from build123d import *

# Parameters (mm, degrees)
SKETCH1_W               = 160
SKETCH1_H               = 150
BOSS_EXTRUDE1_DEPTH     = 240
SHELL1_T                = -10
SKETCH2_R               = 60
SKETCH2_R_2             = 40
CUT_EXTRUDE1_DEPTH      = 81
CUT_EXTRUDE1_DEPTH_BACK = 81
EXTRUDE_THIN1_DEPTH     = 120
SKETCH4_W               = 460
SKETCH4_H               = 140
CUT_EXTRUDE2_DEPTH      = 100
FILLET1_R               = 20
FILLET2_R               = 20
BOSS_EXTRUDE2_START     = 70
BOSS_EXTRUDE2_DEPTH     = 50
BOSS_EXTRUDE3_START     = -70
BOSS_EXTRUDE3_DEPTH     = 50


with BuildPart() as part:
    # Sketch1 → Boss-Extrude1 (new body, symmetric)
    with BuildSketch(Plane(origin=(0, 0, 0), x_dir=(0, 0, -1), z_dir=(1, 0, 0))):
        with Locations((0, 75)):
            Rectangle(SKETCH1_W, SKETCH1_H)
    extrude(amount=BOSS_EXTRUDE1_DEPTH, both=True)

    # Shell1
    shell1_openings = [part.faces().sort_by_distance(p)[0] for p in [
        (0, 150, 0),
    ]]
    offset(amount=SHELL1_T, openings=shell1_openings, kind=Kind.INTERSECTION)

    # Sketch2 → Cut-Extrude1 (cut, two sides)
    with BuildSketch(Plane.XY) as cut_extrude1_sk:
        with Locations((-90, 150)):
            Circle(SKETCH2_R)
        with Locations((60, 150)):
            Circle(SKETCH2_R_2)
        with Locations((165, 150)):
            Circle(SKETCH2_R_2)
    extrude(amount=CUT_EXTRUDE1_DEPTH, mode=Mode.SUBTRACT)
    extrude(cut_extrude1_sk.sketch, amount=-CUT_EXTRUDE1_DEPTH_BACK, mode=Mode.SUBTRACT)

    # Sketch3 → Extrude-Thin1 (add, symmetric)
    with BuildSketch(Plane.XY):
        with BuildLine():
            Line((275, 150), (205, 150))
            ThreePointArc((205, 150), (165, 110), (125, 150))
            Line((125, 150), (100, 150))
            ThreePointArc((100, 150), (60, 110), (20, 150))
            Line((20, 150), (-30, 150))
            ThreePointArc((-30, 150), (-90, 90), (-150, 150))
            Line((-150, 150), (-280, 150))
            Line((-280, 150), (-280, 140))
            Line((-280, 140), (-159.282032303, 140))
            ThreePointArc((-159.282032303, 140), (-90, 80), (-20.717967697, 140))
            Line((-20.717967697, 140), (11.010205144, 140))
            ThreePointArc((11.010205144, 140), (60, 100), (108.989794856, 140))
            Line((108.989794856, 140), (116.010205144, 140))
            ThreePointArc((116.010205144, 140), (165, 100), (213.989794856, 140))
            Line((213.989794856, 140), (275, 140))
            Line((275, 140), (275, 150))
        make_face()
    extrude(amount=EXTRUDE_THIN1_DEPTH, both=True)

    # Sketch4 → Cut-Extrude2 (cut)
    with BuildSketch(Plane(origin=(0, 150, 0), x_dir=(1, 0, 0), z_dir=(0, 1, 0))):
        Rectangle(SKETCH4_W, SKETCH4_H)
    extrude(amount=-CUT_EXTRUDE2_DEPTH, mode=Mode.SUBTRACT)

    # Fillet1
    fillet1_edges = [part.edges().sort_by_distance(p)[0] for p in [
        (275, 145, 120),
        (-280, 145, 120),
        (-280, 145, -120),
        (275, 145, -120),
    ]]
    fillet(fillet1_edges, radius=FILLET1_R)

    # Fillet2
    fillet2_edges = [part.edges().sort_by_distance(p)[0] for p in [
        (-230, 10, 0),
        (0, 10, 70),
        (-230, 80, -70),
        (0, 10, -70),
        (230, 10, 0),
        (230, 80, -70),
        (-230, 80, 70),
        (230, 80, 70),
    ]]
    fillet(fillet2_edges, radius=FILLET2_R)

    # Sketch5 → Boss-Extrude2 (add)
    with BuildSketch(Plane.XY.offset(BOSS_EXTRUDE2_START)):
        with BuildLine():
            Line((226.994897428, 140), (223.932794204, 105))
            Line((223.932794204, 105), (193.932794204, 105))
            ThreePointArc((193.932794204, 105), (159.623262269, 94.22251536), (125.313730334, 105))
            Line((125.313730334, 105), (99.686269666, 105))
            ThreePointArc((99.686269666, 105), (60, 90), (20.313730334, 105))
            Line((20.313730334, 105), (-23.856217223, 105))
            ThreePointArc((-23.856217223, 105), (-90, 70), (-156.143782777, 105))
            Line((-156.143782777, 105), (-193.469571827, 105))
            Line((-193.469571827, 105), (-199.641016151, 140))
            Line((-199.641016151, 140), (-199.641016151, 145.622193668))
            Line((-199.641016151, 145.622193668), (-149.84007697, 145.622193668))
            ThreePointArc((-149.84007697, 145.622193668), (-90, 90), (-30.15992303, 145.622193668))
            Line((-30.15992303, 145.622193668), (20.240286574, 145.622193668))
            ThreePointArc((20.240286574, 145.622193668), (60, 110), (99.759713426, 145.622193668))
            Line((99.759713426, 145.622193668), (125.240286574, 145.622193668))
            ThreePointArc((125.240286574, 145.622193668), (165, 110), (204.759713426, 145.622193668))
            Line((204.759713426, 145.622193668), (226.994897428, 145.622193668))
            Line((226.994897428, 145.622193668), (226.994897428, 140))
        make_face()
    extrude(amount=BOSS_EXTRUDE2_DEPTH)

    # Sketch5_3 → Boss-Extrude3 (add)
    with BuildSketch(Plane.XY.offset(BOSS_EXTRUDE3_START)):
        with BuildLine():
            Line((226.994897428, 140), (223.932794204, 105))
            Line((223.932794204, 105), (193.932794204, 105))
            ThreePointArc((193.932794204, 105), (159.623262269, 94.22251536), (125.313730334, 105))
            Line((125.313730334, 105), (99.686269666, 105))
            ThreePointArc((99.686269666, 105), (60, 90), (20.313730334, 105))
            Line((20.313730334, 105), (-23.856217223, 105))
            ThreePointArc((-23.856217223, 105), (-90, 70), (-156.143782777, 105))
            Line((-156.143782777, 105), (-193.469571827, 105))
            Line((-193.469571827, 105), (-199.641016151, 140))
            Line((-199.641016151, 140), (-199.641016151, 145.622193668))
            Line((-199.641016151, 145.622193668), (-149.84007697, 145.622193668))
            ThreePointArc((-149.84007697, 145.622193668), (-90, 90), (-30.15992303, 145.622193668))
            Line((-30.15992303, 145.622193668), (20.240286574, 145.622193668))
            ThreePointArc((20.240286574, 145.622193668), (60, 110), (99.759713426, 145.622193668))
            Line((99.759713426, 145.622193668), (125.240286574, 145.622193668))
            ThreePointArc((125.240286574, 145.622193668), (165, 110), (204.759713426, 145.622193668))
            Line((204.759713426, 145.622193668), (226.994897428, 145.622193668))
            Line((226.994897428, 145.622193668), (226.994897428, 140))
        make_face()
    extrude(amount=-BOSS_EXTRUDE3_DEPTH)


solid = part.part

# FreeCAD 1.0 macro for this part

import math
import FreeCAD as App
import Part
import Sketcher
from FreeCAD import Vector
Q = App.Units.Quantity


def edges_at(feature, points):
    """Names of the edges that pass closest to the given points."""
    edges = feature.Shape.Edges
    near = lambda p: min(range(len(edges)), key=lambda i: edges[i].distToShape(Part.Vertex(*p))[0])
    return sorted({f"Edge{near(p) + 1}" for p in points})


def faces_at(feature, points):
    """Names of the faces that lie closest to the given points."""
    faces = feature.Shape.Faces
    near = lambda p: min(range(len(faces)), key=lambda i: faces[i].distToShape(Part.Vertex(*p))[0])
    return sorted({f"Face{near(p) + 1}" for p in points})


def add_polygon(sketch, points):
    """Adds a closed chain of lines whose ends are joined by coincident constraints."""
    first, n = sketch.GeometryCount, len(points)
    for a, b in zip(points, points[1:] + points[:1]):
        sketch.addGeometry(Part.LineSegment(App.Vector(*a, 0), App.Vector(*b, 0)), False)
    for i in range(n):
        sketch.addConstraint(Sketcher.Constraint("Coincident", first + i, 2, first + (i + 1) % n, 1))

doc = App.newDocument("Part")
body = doc.addObject("PartDesign::Body", "Body")

sketch1 = body.newObject("Sketcher::SketchObject", "Sketch")
sketch1.AttachmentSupport = (doc.getObject("YZ_Plane"), [""])
sketch1.MapMode = "FlatFace"
add_polygon(sketch1, [(150, 80), (0, 80), (0, -80), (150, -80)])
sketch1.addConstraint(Sketcher.Constraint("Horizontal", 0))
sketch1.addConstraint(Sketcher.Constraint("Vertical", 1))
sketch1.addConstraint(Sketcher.Constraint("Horizontal", 2))
sketch1.addConstraint(Sketcher.Constraint("Vertical", 3))
sketch1.addConstraint(Sketcher.Constraint("Symmetric", 0, 2, 1, 2, -1, 1))
sketch1.addConstraint(Sketcher.Constraint("DistanceX", 0, 2, 0, 1, 150.0))
sketch1.addConstraint(Sketcher.Constraint("DistanceY", 1, 2, 1, 1, 160.0))
pad1 = body.newObject("PartDesign::Pad", "Pad")
pad1.Profile = sketch1
pad1.Length = 480
pad1.Midplane = True
doc.recompute()

thickness = body.newObject("PartDesign::Thickness", "Thickness")
thickness.Base = (pad1, faces_at(pad1, [(0, 150, 0)]))
thickness.Value = 10
thickness.Reversed = True
thickness.Join = "Intersection"

sketch2 = body.newObject("Sketcher::SketchObject", "Sketch001")
sketch2.AttachmentSupport = (doc.getObject("XY_Plane"), [""])
sketch2.MapMode = "FlatFace"
sketch2.addGeometry(Part.Circle(Vector(-90, 150, 0), Vector(0, 0, 1), 60), False)
sketch2.addGeometry(Part.Circle(Vector(60, 150, 0), Vector(0, 0, 1), 40), False)
sketch2.addGeometry(Part.Circle(Vector(165, 150, 0), Vector(0, 0, 1), 40), False)
sketch2.addConstraint(Sketcher.Constraint("Equal", 1, 2))
sketch2.addConstraint(Sketcher.Constraint("Horizontal", 0, 3, 1, 3))
sketch2.addConstraint(Sketcher.Constraint("Horizontal", 1, 3, 2, 3))
sketch2.addConstraint(Sketcher.Constraint("Diameter", 0, 120.0))
sketch2.addConstraint(Sketcher.Constraint("Diameter", 1, 80.0))
sketch2.addConstraint(Sketcher.Constraint("DistanceX", 0, 3, -1, 1, 90.0))
sketch2.addConstraint(Sketcher.Constraint("DistanceY", -1, 1, 0, 3, 150.0))
sketch2.addConstraint(Sketcher.Constraint("DistanceX", -1, 1, 1, 3, 60.0))
sketch2.addConstraint(Sketcher.Constraint("DistanceX", -1, 1, 2, 3, 165.0))
pocket1 = body.newObject("PartDesign::Pocket", "Pocket")
pocket1.Profile = sketch2
pocket1.Type = "ThroughAll"
pocket1.Midplane = True

sketch3 = body.newObject("Sketcher::SketchObject", "Sketch002")
sketch3.AttachmentSupport = (doc.getObject("XY_Plane"), [""])
sketch3.MapMode = "FlatFace"
sketch3.addGeometry(Part.LineSegment(Vector(275, 150, 0), Vector(205, 150, 0)), False)
sketch3.addGeometry(Part.ArcOfCircle(Part.Circle(Vector(165, 150, 0), Vector(0, 0, 1), 40), math.radians(180), math.radians(360)), False)
sketch3.addGeometry(Part.LineSegment(Vector(125, 150, 0), Vector(100, 150, 0)), False)
sketch3.addGeometry(Part.ArcOfCircle(Part.Circle(Vector(60, 150, 0), Vector(0, 0, 1), 40), math.radians(180), math.radians(360)), False)
sketch3.addGeometry(Part.LineSegment(Vector(20, 150, 0), Vector(-30, 150, 0)), False)
sketch3.addGeometry(Part.ArcOfCircle(Part.Circle(Vector(-90, 150, 0), Vector(0, 0, 1), 60), math.radians(180), math.radians(360)), False)
sketch3.addGeometry(Part.LineSegment(Vector(-150, 150, 0), Vector(-280, 150, 0)), False)
sketch3.addGeometry(Part.LineSegment(Vector(-280, 150, 0), Vector(-280, 140, 0)), False)
sketch3.addGeometry(Part.LineSegment(Vector(-280, 140, 0), Vector(-159, 140, 0)), False)
sketch3.addGeometry(Part.ArcOfCircle(Part.Circle(Vector(-90, 150, 0), Vector(0, 0, 1), 70), math.radians(-172), math.radians(-8)), False)
sketch3.addGeometry(Part.LineSegment(Vector(-21, 140, 0), Vector(11, 140, 0)), False)
sketch3.addGeometry(Part.ArcOfCircle(Part.Circle(Vector(60, 150, 0), Vector(0, 0, 1), 50), math.radians(-168), math.radians(-12)), False)
sketch3.addGeometry(Part.LineSegment(Vector(109, 140, 0), Vector(116, 140, 0)), False)
sketch3.addGeometry(Part.ArcOfCircle(Part.Circle(Vector(165, 150, 0), Vector(0, 0, 1), 50), math.radians(-168), math.radians(-12)), False)
sketch3.addGeometry(Part.LineSegment(Vector(214, 140, 0), Vector(275, 140, 0)), False)
sketch3.addGeometry(Part.LineSegment(Vector(275, 140, 0), Vector(275, 150, 0)), False)
sketch3.addConstraint(Sketcher.Constraint("Coincident", 0, 2, 1, 2))
sketch3.addConstraint(Sketcher.Constraint("Coincident", 1, 1, 2, 1))
sketch3.addConstraint(Sketcher.Constraint("Coincident", 2, 2, 3, 2))
sketch3.addConstraint(Sketcher.Constraint("Coincident", 3, 1, 4, 1))
sketch3.addConstraint(Sketcher.Constraint("Coincident", 4, 2, 5, 2))
sketch3.addConstraint(Sketcher.Constraint("Coincident", 5, 1, 6, 1))
sketch3.addConstraint(Sketcher.Constraint("Coincident", 6, 2, 7, 1))
sketch3.addConstraint(Sketcher.Constraint("Coincident", 7, 2, 8, 1))
sketch3.addConstraint(Sketcher.Constraint("Coincident", 8, 2, 9, 1))
sketch3.addConstraint(Sketcher.Constraint("Coincident", 9, 2, 10, 1))
sketch3.addConstraint(Sketcher.Constraint("Coincident", 10, 2, 11, 1))
sketch3.addConstraint(Sketcher.Constraint("Coincident", 11, 2, 12, 1))
sketch3.addConstraint(Sketcher.Constraint("Coincident", 12, 2, 13, 1))
sketch3.addConstraint(Sketcher.Constraint("Coincident", 13, 2, 14, 1))
sketch3.addConstraint(Sketcher.Constraint("Coincident", 14, 2, 15, 1))
sketch3.addConstraint(Sketcher.Constraint("Coincident", 15, 2, 0, 1))
sketch3.addConstraint(Sketcher.Constraint("Horizontal", 0))
sketch3.addConstraint(Sketcher.Constraint("Horizontal", 2))
sketch3.addConstraint(Sketcher.Constraint("Horizontal", 4))
sketch3.addConstraint(Sketcher.Constraint("Horizontal", 6))
sketch3.addConstraint(Sketcher.Constraint("Vertical", 7))
sketch3.addConstraint(Sketcher.Constraint("Horizontal", 8))
sketch3.addConstraint(Sketcher.Constraint("Horizontal", 10))
sketch3.addConstraint(Sketcher.Constraint("Horizontal", 12))
sketch3.addConstraint(Sketcher.Constraint("Horizontal", 14))
sketch3.addConstraint(Sketcher.Constraint("Vertical", 15))
sketch3.addConstraint(Sketcher.Constraint("Coincident", 9, 3, 5, 3))
sketch3.addConstraint(Sketcher.Constraint("Coincident", 11, 3, 3, 3))
sketch3.addConstraint(Sketcher.Constraint("Coincident", 13, 3, 1, 3))
sketch3.addConstraint(Sketcher.Constraint("Equal", 1, 3))
sketch3.addConstraint(Sketcher.Constraint("Equal", 11, 13))
sketch3.addConstraint(Sketcher.Constraint("Horizontal", 1, 3, 3, 3))
sketch3.addConstraint(Sketcher.Constraint("Horizontal", 3, 3, 5, 3))
sketch3.addConstraint(Sketcher.Constraint("Horizontal", 13, 3, 0, 2))
sketch3.addConstraint(Sketcher.Constraint("Horizontal", 0, 2, 1, 1))
sketch3.addConstraint(Sketcher.Constraint("Horizontal", 2, 2, 3, 1))
sketch3.addConstraint(Sketcher.Constraint("Horizontal", 4, 2, 5, 1))
sketch3.addConstraint(Sketcher.Constraint("Horizontal", 8, 2, 9, 2))
sketch3.addConstraint(Sketcher.Constraint("Horizontal", 10, 2, 11, 2))
sketch3.addConstraint(Sketcher.Constraint("Horizontal", 12, 2, 13, 2))
sketch3.addConstraint(Sketcher.Constraint("Radius", 1, 40.0))
sketch3.addConstraint(Sketcher.Constraint("Radius", 5, 60.0))
sketch3.addConstraint(Sketcher.Constraint("Radius", 9, 70.0))
sketch3.addConstraint(Sketcher.Constraint("Radius", 11, 50.0))
sketch3.addConstraint(Sketcher.Constraint("DistanceX", 0, 2, 0, 1, 70.0))
sketch3.addConstraint(Sketcher.Constraint("DistanceX", 2, 2, 2, 1, 25.0))
sketch3.addConstraint(Sketcher.Constraint("DistanceX", 4, 2, 4, 1, 50.0))
sketch3.addConstraint(Sketcher.Constraint("DistanceX", 6, 2, 6, 1, 130.0))
sketch3.addConstraint(Sketcher.Constraint("DistanceY", 7, 2, 7, 1, 10.0))
sketch3.addConstraint(Sketcher.Constraint("DistanceX", -1, 1, 1, 3, 165.0))
sketch3.addConstraint(Sketcher.Constraint("DistanceY", -1, 1, 1, 3, 150.0))
pad2 = body.newObject("PartDesign::Pad", "Pad001")
pad2.Profile = sketch3
pad2.Length = 240
pad2.Midplane = True

sketch4 = body.newObject("Sketcher::SketchObject", "Sketch003")
sketch4.AttachmentSupport = (doc.getObject("XZ_Plane"), [""])
sketch4.MapMode = "FlatFace"
sketch4.AttachmentOffset = App.Placement(Vector(0, 0, -150), App.Rotation())
add_polygon(sketch4, [(-230, -70), (-230, 70), (230, 70), (230, -70)])
sketch4.addConstraint(Sketcher.Constraint("Vertical", 0))
sketch4.addConstraint(Sketcher.Constraint("Horizontal", 1))
sketch4.addConstraint(Sketcher.Constraint("Vertical", 2))
sketch4.addConstraint(Sketcher.Constraint("Horizontal", 3))
sketch4.addConstraint(Sketcher.Constraint("Symmetric", 0, 2, 2, 2, -1, 1))
sketch4.addConstraint(Sketcher.Constraint("DistanceX", 1, 1, 1, 2, 460.0))
sketch4.addConstraint(Sketcher.Constraint("DistanceY", 0, 1, 0, 2, 140.0))
pocket2 = body.newObject("PartDesign::Pocket", "Pocket001")
pocket2.Profile = sketch4
pocket2.Length = 100
pocket2.Reversed = True
doc.recompute()

fillet = body.newObject("PartDesign::Fillet", "Fillet")
fillet.Base = (pocket2, edges_at(pocket2, [
    (275, 145, 120),
    (-280, 145, 120),
    (-280, 145, -120),
    (275, 145, -120),
]))
fillet.Radius = 20
doc.recompute()

fillet2 = body.newObject("PartDesign::Fillet", "Fillet001")
fillet2.Base = (fillet, edges_at(fillet, [
    (-230, 10, 0),
    (0, 10, 70),
    (-230, 95, -70),
    (0, 10, -70),
    (230, 10, 0),
    (230, 95, -70),
    (-230, 95, 70),
    (230, 95, 70),
]))
fillet2.Radius = 20

sketch5 = body.newObject("Sketcher::SketchObject", "Sketch004")
sketch5.AttachmentSupport = (doc.getObject("XY_Plane"), [""])
sketch5.MapMode = "FlatFace"
sketch5.AttachmentOffset = App.Placement(Vector(0, 0, 70), App.Rotation())
sketch5.addGeometry(Part.LineSegment(Vector(224, 105, 0), Vector(227, 140, 0)), False)
sketch5.addGeometry(Part.LineSegment(Vector(227, 140, 0), Vector(227, 146, 0)), False)
sketch5.addGeometry(Part.LineSegment(Vector(227, 146, 0), Vector(205, 146, 0)), False)
sketch5.addGeometry(Part.ArcOfCircle(Part.Circle(Vector(165, 150, 0), Vector(0, 0, 1), 40), math.radians(-174), math.radians(-6)), False)
sketch5.addGeometry(Part.LineSegment(Vector(125, 146, 0), Vector(100, 146, 0)), False)
sketch5.addGeometry(Part.ArcOfCircle(Part.Circle(Vector(60, 150, 0), Vector(0, 0, 1), 40), math.radians(-174), math.radians(-6)), False)
sketch5.addGeometry(Part.LineSegment(Vector(20, 146, 0), Vector(-30, 146, 0)), False)
sketch5.addGeometry(Part.ArcOfCircle(Part.Circle(Vector(-90, 150, 0), Vector(0, 0, 1), 60), math.radians(-176), math.radians(-4)), False)
sketch5.addGeometry(Part.LineSegment(Vector(-150, 146, 0), Vector(-200, 146, 0)), False)
sketch5.addGeometry(Part.LineSegment(Vector(-200, 146, 0), Vector(-200, 140, 0)), False)
sketch5.addGeometry(Part.LineSegment(Vector(-200, 140, 0), Vector(-193, 105, 0)), False)
sketch5.addGeometry(Part.LineSegment(Vector(-193, 105, 0), Vector(-156, 105, 0)), False)
sketch5.addGeometry(Part.ArcOfCircle(Part.Circle(Vector(-90, 150, 0), Vector(0, 0, 1), 80), math.radians(-146), math.radians(-34)), False)
sketch5.addGeometry(Part.LineSegment(Vector(-24, 105, 0), Vector(20, 105, 0)), False)
sketch5.addGeometry(Part.ArcOfCircle(Part.Circle(Vector(60, 150, 0), Vector(0, 0, 1), 60), math.radians(-131), math.radians(-49)), False)
sketch5.addGeometry(Part.LineSegment(Vector(100, 105, 0), Vector(125, 105, 0)), False)
sketch5.addGeometry(Part.ArcOfCircle(Part.Circle(Vector(160, 154, 0), Vector(0, 0, 1), 60), math.radians(-125), math.radians(-55)), False)
sketch5.addGeometry(Part.LineSegment(Vector(194, 105, 0), Vector(224, 105, 0)), False)
sketch5.addConstraint(Sketcher.Constraint("Coincident", 0, 2, 1, 1))
sketch5.addConstraint(Sketcher.Constraint("Coincident", 1, 2, 2, 1))
sketch5.addConstraint(Sketcher.Constraint("Coincident", 2, 2, 3, 2))
sketch5.addConstraint(Sketcher.Constraint("Coincident", 3, 1, 4, 1))
sketch5.addConstraint(Sketcher.Constraint("Coincident", 4, 2, 5, 2))
sketch5.addConstraint(Sketcher.Constraint("Coincident", 5, 1, 6, 1))
sketch5.addConstraint(Sketcher.Constraint("Coincident", 6, 2, 7, 2))
sketch5.addConstraint(Sketcher.Constraint("Coincident", 7, 1, 8, 1))
sketch5.addConstraint(Sketcher.Constraint("Coincident", 8, 2, 9, 1))
sketch5.addConstraint(Sketcher.Constraint("Coincident", 9, 2, 10, 1))
sketch5.addConstraint(Sketcher.Constraint("Coincident", 10, 2, 11, 1))
sketch5.addConstraint(Sketcher.Constraint("Coincident", 11, 2, 12, 1))
sketch5.addConstraint(Sketcher.Constraint("Coincident", 12, 2, 13, 1))
sketch5.addConstraint(Sketcher.Constraint("Coincident", 13, 2, 14, 1))
sketch5.addConstraint(Sketcher.Constraint("Coincident", 14, 2, 15, 1))
sketch5.addConstraint(Sketcher.Constraint("Coincident", 15, 2, 16, 1))
sketch5.addConstraint(Sketcher.Constraint("Coincident", 16, 2, 17, 1))
sketch5.addConstraint(Sketcher.Constraint("Coincident", 17, 2, 0, 1))
sketch5.addConstraint(Sketcher.Constraint("Vertical", 1))
sketch5.addConstraint(Sketcher.Constraint("Horizontal", 2))
sketch5.addConstraint(Sketcher.Constraint("Horizontal", 4))
sketch5.addConstraint(Sketcher.Constraint("Horizontal", 6))
sketch5.addConstraint(Sketcher.Constraint("Horizontal", 8))
sketch5.addConstraint(Sketcher.Constraint("Vertical", 9))
sketch5.addConstraint(Sketcher.Constraint("Horizontal", 11))
sketch5.addConstraint(Sketcher.Constraint("Horizontal", 13))
sketch5.addConstraint(Sketcher.Constraint("Horizontal", 15))
sketch5.addConstraint(Sketcher.Constraint("Horizontal", 17))
sketch5.addConstraint(Sketcher.Constraint("Coincident", 12, 3, 7, 3))
sketch5.addConstraint(Sketcher.Constraint("Coincident", 14, 3, 5, 3))
sketch5.addConstraint(Sketcher.Constraint("Equal", 3, 5))
sketch5.addConstraint(Sketcher.Constraint("Equal", 7, 14))
sketch5.addConstraint(Sketcher.Constraint("Equal", 14, 16))
sketch5.addConstraint(Sketcher.Constraint("Horizontal", 3, 3, 5, 3))
sketch5.addConstraint(Sketcher.Constraint("Horizontal", 5, 3, 7, 3))
sketch5.addConstraint(Sketcher.Constraint("Horizontal", 2, 2, 3, 1))
sketch5.addConstraint(Sketcher.Constraint("Horizontal", 4, 2, 5, 1))
sketch5.addConstraint(Sketcher.Constraint("Horizontal", 6, 2, 7, 1))
sketch5.addConstraint(Sketcher.Constraint("Horizontal", 0, 2, 9, 2))
sketch5.addConstraint(Sketcher.Constraint("Horizontal", 11, 2, 12, 2))
sketch5.addConstraint(Sketcher.Constraint("Horizontal", 13, 2, 14, 2))
sketch5.addConstraint(Sketcher.Constraint("Horizontal", 15, 2, 16, 2))
sketch5.addConstraint(Sketcher.Constraint("Radius", 3, 40.0))
sketch5.addConstraint(Sketcher.Constraint("Radius", 7, 60.0))
sketch5.addConstraint(Sketcher.Constraint("Radius", 12, 80.0))
sketch5.addConstraint(Sketcher.Constraint("DistanceX", 17, 1, 17, 2, 30.0))
sketch5.addConstraint(Sketcher.Constraint("Angle", 0, Q("85 deg")))
sketch5.addConstraint(Sketcher.Constraint("Angle", 10, Q("-80 deg")))
sketch5.addConstraint(Sketcher.Constraint("DistanceX", -1, 1, 3, 3, 165.0))
sketch5.addConstraint(Sketcher.Constraint("DistanceY", -1, 1, 3, 3, 150.0))
sketch5.addConstraint(Sketcher.Constraint("DistanceX", -1, 1, 5, 3, 60.0))
sketch5.addConstraint(Sketcher.Constraint("DistanceX", 7, 3, -1, 1, 90.0))
sketch5.addConstraint(Sketcher.Constraint("DistanceY", -1, 1, 0, 2, 140.0))
sketch5.addConstraint(Sketcher.Constraint("DistanceY", -1, 1, 10, 2, 105.0))
sketch5.addConstraint(Sketcher.Constraint("DistanceX", 6, 2, 6, 1, 50.40021))
sketch5.addConstraint(Sketcher.Constraint("DistanceX", 8, 2, 8, 1, 49.800939))
sketch5.addConstraint(Sketcher.Constraint("DistanceX", 15, 1, 15, 2, 25.627461))
sketch5.addConstraint(Sketcher.Constraint("DistanceX", 2, 2, 2, 1, 22.235184))
pad3 = body.newObject("PartDesign::Pad", "Pad002")
pad3.Profile = sketch5
pad3.Length = 50

sketch6 = body.newObject("Sketcher::SketchObject", "Sketch005")
sketch6.AttachmentSupport = (doc.getObject("XY_Plane"), [""])
sketch6.MapMode = "FlatFace"
sketch6.AttachmentOffset = App.Placement(Vector(0, 0, -70), App.Rotation())
sketch6.addGeometry(Part.LineSegment(Vector(224, 105, 0), Vector(227, 140, 0)), False)
sketch6.addGeometry(Part.LineSegment(Vector(227, 140, 0), Vector(227, 146, 0)), False)
sketch6.addGeometry(Part.LineSegment(Vector(227, 146, 0), Vector(205, 146, 0)), False)
sketch6.addGeometry(Part.ArcOfCircle(Part.Circle(Vector(165, 150, 0), Vector(0, 0, 1), 40), math.radians(-174), math.radians(-6)), False)
sketch6.addGeometry(Part.LineSegment(Vector(125, 146, 0), Vector(100, 146, 0)), False)
sketch6.addGeometry(Part.ArcOfCircle(Part.Circle(Vector(60, 150, 0), Vector(0, 0, 1), 40), math.radians(-174), math.radians(-6)), False)
sketch6.addGeometry(Part.LineSegment(Vector(20, 146, 0), Vector(-30, 146, 0)), False)
sketch6.addGeometry(Part.ArcOfCircle(Part.Circle(Vector(-90, 150, 0), Vector(0, 0, 1), 60), math.radians(-176), math.radians(-4)), False)
sketch6.addGeometry(Part.LineSegment(Vector(-150, 146, 0), Vector(-200, 146, 0)), False)
sketch6.addGeometry(Part.LineSegment(Vector(-200, 146, 0), Vector(-200, 140, 0)), False)
sketch6.addGeometry(Part.LineSegment(Vector(-200, 140, 0), Vector(-193, 105, 0)), False)
sketch6.addGeometry(Part.LineSegment(Vector(-193, 105, 0), Vector(-156, 105, 0)), False)
sketch6.addGeometry(Part.ArcOfCircle(Part.Circle(Vector(-90, 150, 0), Vector(0, 0, 1), 80), math.radians(-146), math.radians(-34)), False)
sketch6.addGeometry(Part.LineSegment(Vector(-24, 105, 0), Vector(20, 105, 0)), False)
sketch6.addGeometry(Part.ArcOfCircle(Part.Circle(Vector(60, 150, 0), Vector(0, 0, 1), 60), math.radians(-131), math.radians(-49)), False)
sketch6.addGeometry(Part.LineSegment(Vector(100, 105, 0), Vector(125, 105, 0)), False)
sketch6.addGeometry(Part.ArcOfCircle(Part.Circle(Vector(160, 154, 0), Vector(0, 0, 1), 60), math.radians(-125), math.radians(-55)), False)
sketch6.addGeometry(Part.LineSegment(Vector(194, 105, 0), Vector(224, 105, 0)), False)
sketch6.addConstraint(Sketcher.Constraint("Coincident", 0, 2, 1, 1))
sketch6.addConstraint(Sketcher.Constraint("Coincident", 1, 2, 2, 1))
sketch6.addConstraint(Sketcher.Constraint("Coincident", 2, 2, 3, 2))
sketch6.addConstraint(Sketcher.Constraint("Coincident", 3, 1, 4, 1))
sketch6.addConstraint(Sketcher.Constraint("Coincident", 4, 2, 5, 2))
sketch6.addConstraint(Sketcher.Constraint("Coincident", 5, 1, 6, 1))
sketch6.addConstraint(Sketcher.Constraint("Coincident", 6, 2, 7, 2))
sketch6.addConstraint(Sketcher.Constraint("Coincident", 7, 1, 8, 1))
sketch6.addConstraint(Sketcher.Constraint("Coincident", 8, 2, 9, 1))
sketch6.addConstraint(Sketcher.Constraint("Coincident", 9, 2, 10, 1))
sketch6.addConstraint(Sketcher.Constraint("Coincident", 10, 2, 11, 1))
sketch6.addConstraint(Sketcher.Constraint("Coincident", 11, 2, 12, 1))
sketch6.addConstraint(Sketcher.Constraint("Coincident", 12, 2, 13, 1))
sketch6.addConstraint(Sketcher.Constraint("Coincident", 13, 2, 14, 1))
sketch6.addConstraint(Sketcher.Constraint("Coincident", 14, 2, 15, 1))
sketch6.addConstraint(Sketcher.Constraint("Coincident", 15, 2, 16, 1))
sketch6.addConstraint(Sketcher.Constraint("Coincident", 16, 2, 17, 1))
sketch6.addConstraint(Sketcher.Constraint("Coincident", 17, 2, 0, 1))
sketch6.addConstraint(Sketcher.Constraint("Vertical", 1))
sketch6.addConstraint(Sketcher.Constraint("Horizontal", 2))
sketch6.addConstraint(Sketcher.Constraint("Horizontal", 4))
sketch6.addConstraint(Sketcher.Constraint("Horizontal", 6))
sketch6.addConstraint(Sketcher.Constraint("Horizontal", 8))
sketch6.addConstraint(Sketcher.Constraint("Vertical", 9))
sketch6.addConstraint(Sketcher.Constraint("Horizontal", 11))
sketch6.addConstraint(Sketcher.Constraint("Horizontal", 13))
sketch6.addConstraint(Sketcher.Constraint("Horizontal", 15))
sketch6.addConstraint(Sketcher.Constraint("Horizontal", 17))
sketch6.addConstraint(Sketcher.Constraint("Coincident", 12, 3, 7, 3))
sketch6.addConstraint(Sketcher.Constraint("Coincident", 14, 3, 5, 3))
sketch6.addConstraint(Sketcher.Constraint("Equal", 3, 5))
sketch6.addConstraint(Sketcher.Constraint("Equal", 7, 14))
sketch6.addConstraint(Sketcher.Constraint("Equal", 14, 16))
sketch6.addConstraint(Sketcher.Constraint("Horizontal", 3, 3, 5, 3))
sketch6.addConstraint(Sketcher.Constraint("Horizontal", 5, 3, 7, 3))
sketch6.addConstraint(Sketcher.Constraint("Horizontal", 2, 2, 3, 1))
sketch6.addConstraint(Sketcher.Constraint("Horizontal", 4, 2, 5, 1))
sketch6.addConstraint(Sketcher.Constraint("Horizontal", 6, 2, 7, 1))
sketch6.addConstraint(Sketcher.Constraint("Horizontal", 0, 2, 9, 2))
sketch6.addConstraint(Sketcher.Constraint("Horizontal", 11, 2, 12, 2))
sketch6.addConstraint(Sketcher.Constraint("Horizontal", 13, 2, 14, 2))
sketch6.addConstraint(Sketcher.Constraint("Horizontal", 15, 2, 16, 2))
sketch6.addConstraint(Sketcher.Constraint("Radius", 3, 40.0))
sketch6.addConstraint(Sketcher.Constraint("Radius", 7, 60.0))
sketch6.addConstraint(Sketcher.Constraint("Radius", 12, 80.0))
sketch6.addConstraint(Sketcher.Constraint("DistanceX", 17, 1, 17, 2, 30.0))
sketch6.addConstraint(Sketcher.Constraint("Angle", 0, Q("85 deg")))
sketch6.addConstraint(Sketcher.Constraint("Angle", 10, Q("-80 deg")))
sketch6.addConstraint(Sketcher.Constraint("DistanceX", -1, 1, 3, 3, 165.0))
sketch6.addConstraint(Sketcher.Constraint("DistanceY", -1, 1, 3, 3, 150.0))
sketch6.addConstraint(Sketcher.Constraint("DistanceX", -1, 1, 5, 3, 60.0))
sketch6.addConstraint(Sketcher.Constraint("DistanceX", 7, 3, -1, 1, 90.0))
sketch6.addConstraint(Sketcher.Constraint("DistanceY", -1, 1, 0, 2, 140.0))
sketch6.addConstraint(Sketcher.Constraint("DistanceY", -1, 1, 10, 2, 105.0))
sketch6.addConstraint(Sketcher.Constraint("DistanceX", 6, 2, 6, 1, 50.40021))
sketch6.addConstraint(Sketcher.Constraint("DistanceX", 8, 2, 8, 1, 49.800939))
sketch6.addConstraint(Sketcher.Constraint("DistanceX", 15, 1, 15, 2, 25.627461))
sketch6.addConstraint(Sketcher.Constraint("DistanceX", 2, 2, 2, 1, 22.235184))
pad4 = body.newObject("PartDesign::Pad", "Pad003")
pad4.Profile = sketch6
pad4.Length = 50
pad4.Reversed = True

doc.recompute()
